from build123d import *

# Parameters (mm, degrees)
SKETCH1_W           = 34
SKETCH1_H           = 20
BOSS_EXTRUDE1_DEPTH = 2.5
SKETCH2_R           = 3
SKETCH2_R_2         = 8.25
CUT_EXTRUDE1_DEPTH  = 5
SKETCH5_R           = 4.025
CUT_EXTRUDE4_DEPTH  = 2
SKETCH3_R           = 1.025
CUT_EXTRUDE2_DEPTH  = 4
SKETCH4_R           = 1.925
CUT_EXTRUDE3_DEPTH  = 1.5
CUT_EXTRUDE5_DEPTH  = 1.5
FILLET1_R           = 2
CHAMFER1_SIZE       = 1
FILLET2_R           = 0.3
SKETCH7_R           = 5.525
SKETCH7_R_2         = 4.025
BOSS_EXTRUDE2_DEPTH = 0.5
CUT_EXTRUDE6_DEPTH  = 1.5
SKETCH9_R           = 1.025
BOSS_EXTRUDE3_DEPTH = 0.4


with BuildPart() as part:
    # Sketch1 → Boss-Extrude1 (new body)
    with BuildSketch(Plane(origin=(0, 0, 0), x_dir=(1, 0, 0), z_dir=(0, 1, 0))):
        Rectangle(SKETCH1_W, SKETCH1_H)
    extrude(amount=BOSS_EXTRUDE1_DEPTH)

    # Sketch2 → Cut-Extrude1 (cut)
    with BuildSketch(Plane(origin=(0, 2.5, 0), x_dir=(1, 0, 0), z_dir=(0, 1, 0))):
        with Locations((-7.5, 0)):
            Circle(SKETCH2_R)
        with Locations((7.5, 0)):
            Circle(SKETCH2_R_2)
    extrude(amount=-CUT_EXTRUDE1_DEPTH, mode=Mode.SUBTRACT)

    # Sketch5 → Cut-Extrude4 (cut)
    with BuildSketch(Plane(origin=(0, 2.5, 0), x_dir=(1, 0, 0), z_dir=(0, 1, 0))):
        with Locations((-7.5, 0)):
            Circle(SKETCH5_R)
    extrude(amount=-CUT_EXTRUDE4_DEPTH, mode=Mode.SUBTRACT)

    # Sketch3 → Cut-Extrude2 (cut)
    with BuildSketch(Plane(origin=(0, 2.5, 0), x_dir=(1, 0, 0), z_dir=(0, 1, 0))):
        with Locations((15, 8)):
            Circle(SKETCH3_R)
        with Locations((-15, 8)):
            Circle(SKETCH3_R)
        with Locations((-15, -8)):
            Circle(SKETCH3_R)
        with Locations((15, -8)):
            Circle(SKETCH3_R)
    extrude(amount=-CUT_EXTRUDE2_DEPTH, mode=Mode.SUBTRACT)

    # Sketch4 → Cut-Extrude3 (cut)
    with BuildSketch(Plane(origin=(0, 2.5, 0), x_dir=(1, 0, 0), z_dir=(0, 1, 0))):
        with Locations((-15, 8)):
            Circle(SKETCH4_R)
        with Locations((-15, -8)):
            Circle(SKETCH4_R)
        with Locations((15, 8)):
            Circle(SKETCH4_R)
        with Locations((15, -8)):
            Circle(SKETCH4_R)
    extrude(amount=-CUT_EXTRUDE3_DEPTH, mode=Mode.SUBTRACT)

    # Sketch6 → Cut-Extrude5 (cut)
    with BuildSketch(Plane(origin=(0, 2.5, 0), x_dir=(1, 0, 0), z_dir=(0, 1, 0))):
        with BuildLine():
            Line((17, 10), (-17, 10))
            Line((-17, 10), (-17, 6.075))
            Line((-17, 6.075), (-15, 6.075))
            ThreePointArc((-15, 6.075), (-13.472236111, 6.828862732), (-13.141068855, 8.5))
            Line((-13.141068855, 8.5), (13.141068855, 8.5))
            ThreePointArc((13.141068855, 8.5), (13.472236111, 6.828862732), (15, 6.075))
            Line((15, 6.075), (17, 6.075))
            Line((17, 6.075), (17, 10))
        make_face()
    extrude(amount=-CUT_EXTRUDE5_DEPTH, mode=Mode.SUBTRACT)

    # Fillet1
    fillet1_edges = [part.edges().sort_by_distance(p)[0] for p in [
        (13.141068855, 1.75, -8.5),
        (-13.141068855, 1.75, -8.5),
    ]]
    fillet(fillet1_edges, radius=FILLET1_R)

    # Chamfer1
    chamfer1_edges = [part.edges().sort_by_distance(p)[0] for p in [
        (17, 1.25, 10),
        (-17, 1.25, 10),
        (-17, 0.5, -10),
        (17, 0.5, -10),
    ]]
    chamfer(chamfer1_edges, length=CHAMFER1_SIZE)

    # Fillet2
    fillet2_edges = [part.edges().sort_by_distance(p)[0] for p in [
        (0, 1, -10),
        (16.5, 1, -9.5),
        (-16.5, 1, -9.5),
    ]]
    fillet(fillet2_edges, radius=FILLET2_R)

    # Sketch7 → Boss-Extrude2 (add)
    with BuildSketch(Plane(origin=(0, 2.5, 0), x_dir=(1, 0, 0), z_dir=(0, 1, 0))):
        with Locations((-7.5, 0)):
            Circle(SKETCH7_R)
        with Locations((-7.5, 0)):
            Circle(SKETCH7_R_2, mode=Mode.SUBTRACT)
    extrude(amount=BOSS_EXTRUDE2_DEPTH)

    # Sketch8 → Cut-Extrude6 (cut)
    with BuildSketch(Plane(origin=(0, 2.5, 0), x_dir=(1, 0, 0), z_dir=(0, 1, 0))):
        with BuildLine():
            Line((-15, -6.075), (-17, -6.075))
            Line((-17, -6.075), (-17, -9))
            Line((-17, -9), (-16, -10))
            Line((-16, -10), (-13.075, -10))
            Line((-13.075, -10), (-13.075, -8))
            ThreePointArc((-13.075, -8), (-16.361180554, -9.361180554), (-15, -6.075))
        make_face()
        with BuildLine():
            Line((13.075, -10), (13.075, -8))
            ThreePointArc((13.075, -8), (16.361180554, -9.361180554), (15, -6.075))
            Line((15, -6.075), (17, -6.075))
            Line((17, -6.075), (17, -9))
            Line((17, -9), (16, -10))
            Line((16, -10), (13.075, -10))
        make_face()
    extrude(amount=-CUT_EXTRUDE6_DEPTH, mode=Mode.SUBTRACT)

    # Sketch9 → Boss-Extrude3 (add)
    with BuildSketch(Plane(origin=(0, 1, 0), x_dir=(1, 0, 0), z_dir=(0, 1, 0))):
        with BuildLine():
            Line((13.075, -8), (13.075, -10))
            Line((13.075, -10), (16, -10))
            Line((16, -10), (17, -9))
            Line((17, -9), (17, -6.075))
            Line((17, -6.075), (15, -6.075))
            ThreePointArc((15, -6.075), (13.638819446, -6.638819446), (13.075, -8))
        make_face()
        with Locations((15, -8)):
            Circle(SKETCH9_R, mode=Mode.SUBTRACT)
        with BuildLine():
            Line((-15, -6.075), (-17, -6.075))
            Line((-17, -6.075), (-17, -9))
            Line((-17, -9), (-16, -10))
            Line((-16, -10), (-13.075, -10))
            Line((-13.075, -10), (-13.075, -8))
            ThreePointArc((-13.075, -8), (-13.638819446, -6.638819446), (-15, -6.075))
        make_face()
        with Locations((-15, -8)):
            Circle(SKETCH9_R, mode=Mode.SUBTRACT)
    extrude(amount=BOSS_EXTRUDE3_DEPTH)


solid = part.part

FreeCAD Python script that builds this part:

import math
import FreeCAD as App
import Part
import Sketcher

V = App.Vector
Q = App.Units.Quantity


def edges_at(feature, points):
    """Names of the edges that pass closest to the given points."""
    edges = feature.Shape.Edges
    near = lambda p: min(range(len(edges)), key=lambda i: edges[i].distToShape(Part.Vertex(*p))[0])
    return sorted({f"Edge{near(p) + 1}" for p in points})


def add_polygon(sketch, points):
    """Adds a closed chain of lines whose ends are joined by coincident constraints."""
    first, n = sketch.GeometryCount, len(points)
    for a, b in zip(points, points[1:] + points[:1]):
        sketch.addGeometry(Part.LineSegment(App.Vector(*a, 0), App.Vector(*b, 0)), False)
    for i in range(n):
        sketch.addConstraint(Sketcher.Constraint("Coincident", first + i, 2, first + (i + 1) % n, 1))

doc = App.newDocument("Part")
params = doc.addObject("Spreadsheet::Sheet", "Params")
for row, (alias, value) in enumerate([
    ("sketch1_width", "34 mm"),
    ("sketch1_height", "20 mm"),
    ("pad1_length", "2.5 mm"),
    ("sketch2_diameter", "6 mm"),
    ("sketch2_diameter2", "16.5 mm"),
    ("pocket1_length", "5 mm"),
    ("sketch3_diameter", "8.05 mm"),
    ("pocket2_length", "2 mm"),
    ("sketch4_diameter", "2.05 mm"),
    ("pocket3_length", "4 mm"),
    ("sketch5_diameter", "3.85 mm"),
    ("pocket4_length", "1.5 mm"),
    ("sketch6_width", "34 mm"),
    ("sketch6_width2", "2 mm"),
    ("pocket5_length", "1.5 mm"),
    ("fillet_radius", "2 mm"),
    ("chamfer_size", "1 mm"),
    ("fillet2_radius", "0.3 mm"),
    ("sketch7_diameter", "11.05 mm"),
    ("sketch7_diameter2", "8.05 mm"),
    ("pad2_length", "0.5 mm"),
    ("sketch8_width", "2 mm"),
    ("pocket6_length", "1.5 mm"),
    ("sketch9_diameter", "2.05 mm"),
    ("sketch9_width", "2 mm"),
    ("pad3_length", "0.4 mm"),
], start=1):
    params.set(f"A{row}", alias)
    params.set(f"B{row}", "=" + value)
    params.setAlias(f"B{row}", alias)

body = doc.addObject("PartDesign::Body", "Body")

sketch1 = body.newObject("Sketcher::SketchObject", "Sketch")
sketch1.AttachmentSupport = (doc.getObject("XZ_Plane"), [""])
sketch1.MapMode = "FlatFace"
add_polygon(sketch1, [(-17, -10), (-17, 10), (17, 10), (17, -10)])
sketch1.addConstraint([
    Sketcher.Constraint("Vertical", 0),
    Sketcher.Constraint("Horizontal", 1),
    Sketcher.Constraint("Vertical", 2),
    Sketcher.Constraint("Horizontal", 3),
    Sketcher.Constraint("Symmetric", 0, 2, 2, 2, -1, 1),
    Sketcher.Constraint("DistanceX", 1, 1, 1, 2, Q("34 mm")),
    Sketcher.Constraint("DistanceY", 0, 1, 0, 2, Q("20 mm")),
])
sketch1.setExpression("Constraints[9]", "Params.sketch1_width")
sketch1.setExpression("Constraints[10]", "Params.sketch1_height")
pad1 = body.newObject("PartDesign::Pad", "Pad")
pad1.Profile = sketch1
pad1.setExpression("Length", "Params.pad1_length")
pad1.Reversed = True

sketch2 = body.newObject("Sketcher::SketchObject", "Sketch001")
sketch2.AttachmentSupport = (doc.getObject("XZ_Plane"), [""])
sketch2.MapMode = "FlatFace"
sketch2.AttachmentOffset = App.Placement(V(0, 0, -2.5), App.Rotation())
sketch2.addGeometry([
    Part.Circle(V(-7.5, 0, 0), V(0, 0, 1), 3),
    Part.Circle(V(7.5, 0, 0), V(0, 0, 1), 8.2),
], False)
sketch2.addConstraint([
    Sketcher.Constraint("Symmetric", 0, 3, 1, 3, -1, 1),
    Sketcher.Constraint("PointOnObject", 0, 3, -1),
    Sketcher.Constraint("Diameter", 0, Q("6 mm")),
    Sketcher.Constraint("Diameter", 1, Q("16.5 mm")),
    Sketcher.Constraint("DistanceX", 0, 3, 1, 3, Q("15 mm")),
])
sketch2.setExpression("Constraints[2]", "Params.sketch2_diameter")
sketch2.setExpression("Constraints[3]", "Params.sketch2_diameter2")
pocket1 = body.newObject("PartDesign::Pocket", "Pocket")
pocket1.Profile = sketch2
pocket1.setExpression("Length", "Params.pocket1_length")
pocket1.Reversed = True

sketch3 = body.newObject("Sketcher::SketchObject", "Sketch002")
sketch3.AttachmentSupport = (doc.getObject("XZ_Plane"), [""])
sketch3.MapMode = "FlatFace"
sketch3.AttachmentOffset = App.Placement(V(0, 0, -2.5), App.Rotation())
sketch3.addGeometry(Part.Circle(V(-7.5, 0, 0), V(0, 0, 1), 4), False)
sketch3.addConstraint([
    Sketcher.Constraint("PointOnObject", 0, 3, -1),
    Sketcher.Constraint("Diameter", 0, Q("8.05 mm")),
    Sketcher.Constraint("DistanceX", 0, 3, -1, 1, Q("7.5 mm")),
])
sketch3.setExpression("Constraints[1]", "Params.sketch3_diameter")
pocket2 = body.newObject("PartDesign::Pocket", "Pocket001")
pocket2.Profile = sketch3
pocket2.setExpression("Length", "Params.pocket2_length")
pocket2.Reversed = True

sketch4 = body.newObject("Sketcher::SketchObject", "Sketch003")
sketch4.AttachmentSupport = (doc.getObject("XZ_Plane"), [""])
sketch4.MapMode = "FlatFace"
sketch4.AttachmentOffset = App.Placement(V(0, 0, -2.5), App.Rotation())
sketch4.addGeometry([
    Part.Circle(V(15, -8, 0), V(0, 0, 1), 1),
    Part.Circle(V(-15, -8, 0), V(0, 0, 1), 1),
    Part.Circle(V(-15, 8, 0), V(0, 0, 1), 1),
    Part.Circle(V(15, 8, 0), V(0, 0, 1), 1),
], False)
sketch4.addConstraint([
    Sketcher.Constraint("Equal", 0, 1),
    Sketcher.Constraint("Equal", 1, 2),
    Sketcher.Constraint("Equal", 2, 3),
    Sketcher.Constraint("Symmetric", 0, 3, 2, 3, -1, 1),
    Sketcher.Constraint("Symmetric", 1, 3, 3, 3, -1, 1),
    Sketcher.Constraint("Symmetric", 0, 3, 1, 3, -2),
    Sketcher.Constraint("Diameter", 0, Q("2.05 mm")),
    Sketcher.Constraint("DistanceX", -1, 1, 0, 3, Q("15 mm")),
    Sketcher.Constraint("DistanceY", 0, 3, -1, 1, Q("8 mm")),
])
sketch4.setExpression("Constraints[6]", "Params.sketch4_diameter")
pocket3 = body.newObject("PartDesign::Pocket", "Pocket002")
pocket3.Profile = sketch4
pocket3.setExpression("Length", "Params.pocket3_length")
pocket3.Reversed = True

sketch5 = body.newObject("Sketcher::SketchObject", "Sketch004")
sketch5.AttachmentSupport = (doc.getObject("XZ_Plane"), [""])
sketch5.MapMode = "FlatFace"
sketch5.AttachmentOffset = App.Placement(V(0, 0, -2.5), App.Rotation())
sketch5.addGeometry([
    Part.Circle(V(-15, -8, 0), V(0, 0, 1), 1.9),
    Part.Circle(V(-15, 8, 0), V(0, 0, 1), 1.9),
    Part.Circle(V(15, -8, 0), V(0, 0, 1), 1.9),
    Part.Circle(V(15, 8, 0), V(0, 0, 1), 1.9),
], False)
sketch5.addConstraint([
    Sketcher.Constraint("Equal", 0, 1),
    Sketcher.Constraint("Equal", 1, 2),
    Sketcher.Constraint("Equal", 2, 3),
    Sketcher.Constraint("Symmetric", 1, 3, 2, 3, -1, 1),
    Sketcher.Constraint("Symmetric", 0, 3, 3, 3, -1, 1),
    Sketcher.Constraint("Symmetric", 0, 3, 2, 3, -2),
    Sketcher.Constraint("Diameter", 0, Q("3.85 mm")),
    Sketcher.Constraint("DistanceX", 0, 3, -1, 1, Q("15 mm")),
    Sketcher.Constraint("DistanceY", 0, 3, -1, 1, Q("8 mm")),
])
sketch5.setExpression("Constraints[6]", "Params.sketch5_diameter")
pocket4 = body.newObject("PartDesign::Pocket", "Pocket003")
pocket4.Profile = sketch5
pocket4.setExpression("Length", "Params.pocket4_length")
pocket4.Reversed = True

sketch6 = body.newObject("Sketcher::SketchObject", "Sketch005")
sketch6.AttachmentSupport = (doc.getObject("XZ_Plane"), [""])
sketch6.MapMode = "FlatFace"
sketch6.AttachmentOffset = App.Placement(V(0, 0, -2.5), App.Rotation())
sketch6.addGeometry([
    Part.LineSegment(V(17, -10, 0), V(-17, -10, 0)),
    Part.LineSegment(V(-17, -10, 0), V(-17, -6.1, 0)),
    Part.LineSegment(V(-17, -6.1, 0), V(-15, -6.1, 0)),
    Part.ArcOfCircle(Part.Circle(V(-15, -8, 0), V(0, 0, 1), 1.9), math.radians(-15), math.radians(90)),
    Part.LineSegment(V(-13.1, -8.5, 0), V(13.1, -8.5, 0)),
    Part.ArcOfCircle(Part.Circle(V(15, -8, 0), V(0, 0, 1), 1.9), math.radians(90), math.radians(195)),
    Part.LineSegment(V(15, -6.1, 0), V(17, -6.1, 0)),
    Part.LineSegment(V(17, -6.1, 0), V(17, -10, 0)),
], False)
sketch6.addConstraint([
    Sketcher.Constraint("Coincident", 0, 2, 1, 1),
    Sketcher.Constraint("Coincident", 1, 2, 2, 1),
    Sketcher.Constraint("Tangent", 2, 2, 3, 2),
    Sketcher.Constraint("Coincident", 3, 1, 4, 1),
    Sketcher.Constraint("Coincident", 4, 2, 5, 2),
    Sketcher.Constraint("Tangent", 5, 1, 6, 1),
    Sketcher.Constraint("Coincident", 6, 2, 7, 1),
    Sketcher.Constraint("Coincident", 7, 2, 0, 1),
    Sketcher.Constraint("Horizontal", 0),
    Sketcher.Constraint("Vertical", 1),
    Sketcher.Constraint("Horizontal", 2),
    Sketcher.Constraint("Horizontal", 4),
    Sketcher.Constraint("Horizontal", 6),
    Sketcher.Constraint("Vertical", 7),
    Sketcher.Constraint("Equal", 3, 5),
    Sketcher.Constraint("Symmetric", 3, 3, 5, 3, -2),
    Sketcher.Constraint("Equal", 2, 6),
    Sketcher.Constraint("DistanceX", 0, 2, 0, 1, Q("34 mm")),
    Sketcher.Constraint("DistanceX", 2, 1, 2, 2, Q("2 mm")),
    Sketcher.Constraint("DistanceY", 3, 3, -1, 1, Q("8 mm")),
    Sketcher.Constraint("DistanceY", 0, 2, -1, 1, Q("10 mm")),
    Sketcher.Constraint("Radius", 3, Q("1.925 mm")),
    Sketcher.Constraint("DistanceY", 3, 1, -1, 1, Q("8.5 mm")),
])
sketch6.setExpression("Constraints[17]", "Params.sketch6_width")
sketch6.setExpression("Constraints[18]", "Params.sketch6_width2")
pocket5 = body.newObject("PartDesign::Pocket", "Pocket004")
pocket5.Profile = sketch6
pocket5.setExpression("Length", "Params.pocket5_length")
pocket5.Reversed = True
doc.recompute()

fillet = body.newObject("PartDesign::Fillet", "Fillet")
fillet.Base = (pocket5, edges_at(pocket5, [(13.141, 1.75, -8.5), (-13.141, 1.75, -8.5)]))
fillet.setExpression("Radius", "Params.fillet_radius")
doc.recompute()

chamfer = body.newObject("PartDesign::Chamfer", "Chamfer")
chamfer.Base = (fillet, edges_at(fillet, [
    (17, 1.25, 10),
    (-17, 1.25, 10),
    (-17, 0.5, -10),
    (17, 0.5, -10),
]))
chamfer.setExpression("Size", "Params.chamfer_size")
doc.recompute()

fillet2 = body.newObject("PartDesign::Fillet", "Fillet001")
fillet2.Base = (chamfer, edges_at(chamfer, [(0, 1, -10), (16.5, 1, -9.5), (-16.5, 1, -9.5)]))
fillet2.setExpression("Radius", "Params.fillet2_radius")

sketch7 = body.newObject("Sketcher::SketchObject", "Sketch006")
sketch7.AttachmentSupport = (doc.getObject("XZ_Plane"), [""])
sketch7.MapMode = "FlatFace"
sketch7.AttachmentOffset = App.Placement(V(0, 0, -2.5), App.Rotation())
sketch7.addGeometry([
    Part.Circle(V(-7.5, 0, 0), V(0, 0, 1), 5.5),
    Part.Circle(V(-7.5, 0, 0), V(0, 0, 1), 4),
], False)
sketch7.addConstraint([
    Sketcher.Constraint("Coincident", 1, 3, 0, 3),
    Sketcher.Constraint("PointOnObject", 0, 3, -1),
    Sketcher.Constraint("Diameter", 0, Q("11.05 mm")),
    Sketcher.Constraint("Diameter", 1, Q("8.05 mm")),
    Sketcher.Constraint("DistanceX", 0, 3, -1, 1, Q("7.5 mm")),
])
sketch7.setExpression("Constraints[2]", "Params.sketch7_diameter")
sketch7.setExpression("Constraints[3]", "Params.sketch7_diameter2")
pad2 = body.newObject("PartDesign::Pad", "Pad001")
pad2.Profile = sketch7
pad2.setExpression("Length", "Params.pad2_length")
pad2.Reversed = True

sketch8 = body.newObject("Sketcher::SketchObject", "Sketch007")
sketch8.AttachmentSupport = (doc.getObject("XZ_Plane"), [""])
sketch8.MapMode = "FlatFace"
sketch8.AttachmentOffset = App.Placement(V(0, 0, -2.5), App.Rotation())
sketch8.addGeometry([
    Part.LineSegment(V(-15, 6.1, 0), V(-17, 6.1, 0)),
    Part.LineSegment(V(-17, 6.1, 0), V(-17, 9, 0)),
    Part.LineSegment(V(-17, 9, 0), V(-16, 10, 0)),
    Part.LineSegment(V(-16, 10, 0), V(-13.1, 10, 0)),
    Part.LineSegment(V(-13.1, 10, 0), V(-13.1, 8, 0)),
    Part.ArcOfCircle(Part.Circle(V(-15, 8, 0), V(0, 0, 1), 1.9), math.radians(0), math.radians(270)),
    Part.LineSegment(V(13.1, 8, 0), V(13.1, 10, 0)),
    Part.LineSegment(V(13.1, 10, 0), V(16, 10, 0)),
    Part.LineSegment(V(16, 10, 0), V(17, 9, 0)),
    Part.LineSegment(V(17, 9, 0), V(17, 6.1, 0)),
    Part.LineSegment(V(17, 6.1, 0), V(15, 6.1, 0)),
    Part.ArcOfCircle(Part.Circle(V(15, 8, 0), V(0, 0, 1), 1.9), math.radians(-90), math.radians(180)),
], False)
sketch8.addConstraint([
    Sketcher.Constraint("Coincident", 0, 2, 1, 1),
    Sketcher.Constraint("Coincident", 1, 2, 2, 1),
    Sketcher.Constraint("Coincident", 2, 2, 3, 1),
    Sketcher.Constraint("Coincident", 3, 2, 4, 1),
    Sketcher.Constraint("Tangent", 4, 2, 5, 1),
    Sketcher.Constraint("Tangent", 5, 2, 0, 1),
    Sketcher.Constraint("Coincident", 6, 2, 7, 1),
    Sketcher.Constraint("Coincident", 7, 2, 8, 1),
    Sketcher.Constraint("Coincident", 8, 2, 9, 1),
    Sketcher.Constraint("Coincident", 9, 2, 10, 1),
    Sketcher.Constraint("Tangent", 10, 2, 11, 1),
    Sketcher.Constraint("Tangent", 11, 2, 6, 1),
    Sketcher.Constraint("Horizontal", 0),
    Sketcher.Constraint("Vertical", 1),
    Sketcher.Constraint("Horizontal", 3),
    Sketcher.Constraint("Vertical", 4),
    Sketcher.Constraint("Vertical", 6),
    Sketcher.Constraint("Horizontal", 7),
    Sketcher.Constraint("Vertical", 9),
    Sketcher.Constraint("Horizontal", 10),
    Sketcher.Constraint("Equal", 5, 11),
    Sketcher.Constraint("Symmetric", 5, 3, 11, 3, -2),
    Sketcher.Constraint("Symmetric", 2, 2, 7, 2, -2),
    Sketcher.Constraint("Symmetric", 1, 2, 8, 2, -2),
    Sketcher.Constraint("Perpendicular", 2, 8),
    Sketcher.Constraint("Equal", 7, 1),
    Sketcher.Constraint("DistanceX", 0, 2, 0, 1, Q("2 mm")),
    Sketcher.Constraint("DistanceX", 5, 3, -1, 1, Q("15 mm")),
    Sketcher.Constraint("DistanceY", -1, 1, 5, 3, Q("8 mm")),
    Sketcher.Constraint("DistanceY", -1, 1, 1, 2, Q("9 mm")),
    Sketcher.Constraint("Radius", 5, Q("1.925 mm")),
])
sketch8.setExpression("Constraints[26]", "Params.sketch8_width")
pocket6 = body.newObject("PartDesign::Pocket", "Pocket005")
pocket6.Profile = sketch8
pocket6.setExpression("Length", "Params.pocket6_length")
pocket6.Reversed = True

sketch9 = body.newObject("Sketcher::SketchObject", "Sketch008")
sketch9.AttachmentSupport = (doc.getObject("XZ_Plane"), [""])
sketch9.MapMode = "FlatFace"
sketch9.AttachmentOffset = App.Placement(V(0, 0, -1), App.Rotation())
sketch9.addGeometry([
    Part.LineSegment(V(13.1, 8, 0), V(13.1, 10, 0)),
    Part.LineSegment(V(13.1, 10, 0), V(16, 10, 0)),
    Part.LineSegment(V(16, 10, 0), V(17, 9, 0)),
    Part.LineSegment(V(17, 9, 0), V(17, 6.1, 0)),
    Part.LineSegment(V(17, 6.1, 0), V(15, 6.1, 0)),
    Part.ArcOfCircle(Part.Circle(V(15, 8, 0), V(0, 0, 1), 1.9), math.radians(180), math.radians(270)),
    Part.Circle(V(15, 8, 0), V(0, 0, 1), 1),
    Part.LineSegment(V(-15, 6.1, 0), V(-17, 6.1, 0)),
    Part.LineSegment(V(-17, 6.1, 0), V(-17, 9, 0)),
    Part.LineSegment(V(-17, 9, 0), V(-16, 10, 0)),
    Part.LineSegment(V(-16, 10, 0), V(-13.1, 10, 0)),
    Part.LineSegment(V(-13.1, 10, 0), V(-13.1, 8, 0)),
    Part.ArcOfCircle(Part.Circle(V(-15, 8, 0), V(0, 0, 1), 1.9), math.radians(-90), math.radians(0)),
    Part.Circle(V(-15, 8, 0), V(0, 0, 1), 1),
], False)
sketch9.addConstraint([
    Sketcher.Constraint("Coincident", 0, 2, 1, 1),
    Sketcher.Constraint("Coincident", 1, 2, 2, 1),
    Sketcher.Constraint("Coincident", 2, 2, 3, 1),
    Sketcher.Constraint("Coincident", 3, 2, 4, 1),
    Sketcher.Constraint("Tangent", 4, 2, 5, 2),
    Sketcher.Constraint("Tangent", 5, 1, 0, 1),
    Sketcher.Constraint("Coincident", 7, 2, 8, 1),
    Sketcher.Constraint("Coincident", 8, 2, 9, 1),
    Sketcher.Constraint("Coincident", 9, 2, 10, 1),
    Sketcher.Constraint("Coincident", 10, 2, 11, 1),
    Sketcher.Constraint("Tangent", 11, 2, 12, 2),
    Sketcher.Constraint("Tangent", 12, 1, 7, 1),
    Sketcher.Constraint("Vertical", 0),
    Sketcher.Constraint("Horizontal", 1),
    Sketcher.Constraint("Vertical", 3),
    Sketcher.Constraint("Horizontal", 4),
    Sketcher.Constraint("Horizontal", 7),
    Sketcher.Constraint("Vertical", 8),
    Sketcher.Constraint("Horizontal", 10),
    Sketcher.Constraint("Vertical", 11),
    Sketcher.Constraint("Coincident", 6, 3, 5, 3),
    Sketcher.Constraint("Coincident", 13, 3, 12, 3),
    Sketcher.Constraint("Equal", 5, 12),
    Sketcher.Constraint("Equal", 6, 13),
    Sketcher.Constraint("Symmetric", 5, 3, 12, 3, -2),
    Sketcher.Constraint("Symmetric", 2, 2, 8, 2, -2),
    Sketcher.Constraint("Symmetric", 1, 2, 9, 2, -2),
    Sketcher.Constraint("Perpendicular", 2, 9),
    Sketcher.Constraint("Equal", 7, 0),
    Sketcher.Constraint("Diameter", 6, Q("2.05 mm")),
    Sketcher.Constraint("DistanceX", 4, 2, 4, 1, Q("2 mm")),
    Sketcher.Constraint("DistanceX", -1, 1, 5, 3, Q("15 mm")),
    Sketcher.Constraint("DistanceY", -1, 1, 5, 3, Q("8 mm")),
    Sketcher.Constraint("DistanceX", -1, 1, 1, 2, Q("16 mm")),
    Sketcher.Constraint("Radius", 5, Q("1.925 mm")),
])
sketch9.setExpression("Constraints[29]", "Params.sketch9_diameter")
sketch9.setExpression("Constraints[30]", "Params.sketch9_width")
pad3 = body.newObject("PartDesign::Pad", "Pad002")
pad3.Profile = sketch9
pad3.setExpression("Length", "Params.pad3_length")
pad3.Reversed = True

doc.recompute()
